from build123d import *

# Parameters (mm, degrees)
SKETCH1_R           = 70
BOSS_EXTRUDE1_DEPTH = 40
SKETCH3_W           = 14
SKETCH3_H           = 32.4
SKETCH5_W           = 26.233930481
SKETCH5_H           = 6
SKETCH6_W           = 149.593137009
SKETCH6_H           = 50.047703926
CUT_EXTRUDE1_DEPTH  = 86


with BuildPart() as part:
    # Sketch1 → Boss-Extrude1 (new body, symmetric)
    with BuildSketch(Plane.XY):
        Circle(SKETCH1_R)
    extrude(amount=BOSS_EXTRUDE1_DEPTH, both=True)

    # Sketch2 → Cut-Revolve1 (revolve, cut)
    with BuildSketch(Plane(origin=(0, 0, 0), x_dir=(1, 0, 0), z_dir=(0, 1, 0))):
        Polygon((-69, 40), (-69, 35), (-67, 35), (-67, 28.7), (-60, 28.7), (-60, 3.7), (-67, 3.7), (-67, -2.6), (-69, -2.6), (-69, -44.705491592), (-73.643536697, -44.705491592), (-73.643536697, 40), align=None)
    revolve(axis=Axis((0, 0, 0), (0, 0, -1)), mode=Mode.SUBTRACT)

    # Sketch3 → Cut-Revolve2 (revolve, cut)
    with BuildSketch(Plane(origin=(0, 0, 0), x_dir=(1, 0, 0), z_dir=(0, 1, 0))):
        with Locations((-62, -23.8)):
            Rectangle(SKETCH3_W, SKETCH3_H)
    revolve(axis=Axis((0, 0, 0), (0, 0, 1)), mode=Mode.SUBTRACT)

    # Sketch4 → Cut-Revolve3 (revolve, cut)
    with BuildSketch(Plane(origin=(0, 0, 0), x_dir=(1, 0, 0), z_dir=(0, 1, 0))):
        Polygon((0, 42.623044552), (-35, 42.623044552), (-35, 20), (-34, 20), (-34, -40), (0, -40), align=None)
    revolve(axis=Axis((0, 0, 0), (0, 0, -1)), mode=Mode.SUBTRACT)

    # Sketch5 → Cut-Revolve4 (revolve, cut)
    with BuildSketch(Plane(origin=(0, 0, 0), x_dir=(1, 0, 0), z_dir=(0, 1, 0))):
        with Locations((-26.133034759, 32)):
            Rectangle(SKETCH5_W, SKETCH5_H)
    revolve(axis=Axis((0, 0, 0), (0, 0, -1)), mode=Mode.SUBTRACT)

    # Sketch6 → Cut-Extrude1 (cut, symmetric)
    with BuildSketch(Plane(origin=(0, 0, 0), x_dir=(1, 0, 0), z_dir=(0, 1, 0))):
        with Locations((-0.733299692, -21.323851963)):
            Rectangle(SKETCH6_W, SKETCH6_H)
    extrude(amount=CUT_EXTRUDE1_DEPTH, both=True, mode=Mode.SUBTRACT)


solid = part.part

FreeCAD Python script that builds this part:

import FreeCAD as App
import Part
import Sketcher
from FreeCAD import Vector
Q = App.Units.Quantity

doc = App.newDocument("Part")
body = doc.addObject("PartDesign::Body", "Body")

# Sketch on XY plane
sketch1 = doc.addObject("Sketcher::SketchObject", "Sketch")
body.addObject(sketch1)
sketch1.AttachmentSupport = (doc.XY_Plane, [""])
sketch1.MapMode = "FlatFace"
sketch1.addGeometry(Part.Circle(Vector(0, 0, 0), Vector(0, 0, 1), 70), False)
sketch1.addConstraint([
    Sketcher.Constraint("Coincident", 0, 3, -1, 1),
    Sketcher.Constraint("Diameter", 0, Q("140 mm")),
])
pad1 = doc.addObject("PartDesign::Pad", "Pad")
body.addObject(pad1)
pad1.Profile = sketch1
pad1.Length = 80
pad1.Midplane = True

# Sketch on XZ plane
sketch2 = doc.addObject("Sketcher::SketchObject", "Sketch001")
body.addObject(sketch2)
sketch2.AttachmentSupport = (doc.XZ_Plane, [""])
sketch2.MapMode = "FlatFace"
sketch2.addGeometry([
    Part.LineSegment(Vector(-69, -35, 0), Vector(-69, -40, 0)),  # 0
    Part.LineSegment(Vector(-69, -40, 0), Vector(-73.643537, -40, 0)),  # 1
    Part.LineSegment(Vector(-73.643537, -40, 0), Vector(-73.643537, 44.705492, 0)),  # 2
    Part.LineSegment(Vector(-73.643537, 44.705492, 0), Vector(-69, 44.705492, 0)),  # 3
    Part.LineSegment(Vector(-69, 44.705492, 0), Vector(-69, 2.6, 0)),  # 4
    Part.LineSegment(Vector(-69, 2.6, 0), Vector(-67, 2.6, 0)),  # 5
    Part.LineSegment(Vector(-67, 2.6, 0), Vector(-67, -3.7, 0)),  # 6
    Part.LineSegment(Vector(-67, -3.7, 0), Vector(-60, -3.7, 0)),  # 7
    Part.LineSegment(Vector(-60, -3.7, 0), Vector(-60, -28.7, 0)),  # 8
    Part.LineSegment(Vector(-60, -28.7, 0), Vector(-67, -28.7, 0)),  # 9
    Part.LineSegment(Vector(-67, -28.7, 0), Vector(-67, -35, 0)),  # 10
    Part.LineSegment(Vector(-67, -35, 0), Vector(-69, -35, 0)),  # 11
], False)
sketch2.addConstraint([
    Sketcher.Constraint("Coincident", 0, 2, 1, 1),
    Sketcher.Constraint("Coincident", 1, 2, 2, 1),
    Sketcher.Constraint("Coincident", 2, 2, 3, 1),
    Sketcher.Constraint("Coincident", 3, 2, 4, 1),
    Sketcher.Constraint("Coincident", 4, 2, 5, 1),
    Sketcher.Constraint("Coincident", 5, 2, 6, 1),
    Sketcher.Constraint("Coincident", 6, 2, 7, 1),
    Sketcher.Constraint("Coincident", 7, 2, 8, 1),
    Sketcher.Constraint("Coincident", 8, 2, 9, 1),
    Sketcher.Constraint("Coincident", 9, 2, 10, 1),
    Sketcher.Constraint("Coincident", 10, 2, 11, 1),
    Sketcher.Constraint("Coincident", 11, 2, 0, 1),
    Sketcher.Constraint("Vertical", 0),
    Sketcher.Constraint("Horizontal", 1),
    Sketcher.Constraint("Vertical", 2),
    Sketcher.Constraint("Horizontal", 3),
    Sketcher.Constraint("Vertical", 4),
    Sketcher.Constraint("Horizontal", 5),
    Sketcher.Constraint("Vertical", 6),
    Sketcher.Constraint("Horizontal", 7),
    Sketcher.Constraint("Vertical", 8),
    Sketcher.Constraint("Horizontal", 9),
    Sketcher.Constraint("Vertical", 10),
    Sketcher.Constraint("Horizontal", 11),
    Sketcher.Constraint("Vertical", 0, 2, 3, 2),
    Sketcher.Constraint("Vertical", 6, 2, 9, 2),
    Sketcher.Constraint("Equal", 6, 10),
    Sketcher.Constraint("DistanceX", 5, 1, 5, 2, Q("2 mm")),
    Sketcher.Constraint("DistanceX", 7, 1, 7, 2, Q("7 mm")),
    Sketcher.Constraint("DistanceY", 0, 2, 0, 1, Q("5 mm")),
    Sketcher.Constraint("DistanceY", 8, 2, 8, 1, Q("25 mm")),
    Sketcher.Constraint("DistanceY", 6, 2, 6, 1, Q("6.3 mm")),
    Sketcher.Constraint("DistanceX", 0, 2, -1, 1, Q("69 mm")),
    Sketcher.Constraint("DistanceY", 0, 2, -1, 1, Q("40 mm")),
    Sketcher.Constraint("DistanceY", 2, 1, 2, 2, Q("84.705492 mm")),
    Sketcher.Constraint("DistanceX", 1, 2, 1, 1, Q("4.643537 mm")),
])
groove = doc.addObject("PartDesign::Groove", "Groove")
body.addObject(groove)
groove.Profile = sketch2
groove.ReferenceAxis = (sketch2, ["V_Axis"])
groove.Angle = 360

# Sketch on XZ plane
sketch3 = doc.addObject("Sketcher::SketchObject", "Sketch002")
body.addObject(sketch3)
sketch3.AttachmentSupport = (doc.XZ_Plane, [""])
sketch3.MapMode = "FlatFace"
sketch3.addGeometry([
    Part.LineSegment(Vector(-69, 7.6, 0), Vector(-69, 40, 0)),
    Part.LineSegment(Vector(-69, 40, 0), Vector(-55, 40, 0)),
    Part.LineSegment(Vector(-55, 40, 0), Vector(-55, 7.6, 0)),
    Part.LineSegment(Vector(-55, 7.6, 0), Vector(-69, 7.6, 0)),
], False)
sketch3.addConstraint([
    Sketcher.Constraint("Coincident", 0, 2, 1, 1),
    Sketcher.Constraint("Coincident", 1, 2, 2, 1),
    Sketcher.Constraint("Coincident", 2, 2, 3, 1),
    Sketcher.Constraint("Coincident", 3, 2, 0, 1),
    Sketcher.Constraint("Vertical", 0),
    Sketcher.Constraint("Horizontal", 1),
    Sketcher.Constraint("Vertical", 2),
    Sketcher.Constraint("Horizontal", 3),
    Sketcher.Constraint("DistanceX", 1, 1, 1, 2, Q("14 mm")),
    Sketcher.Constraint("DistanceY", 0, 1, 0, 2, Q("32.4 mm")),
    Sketcher.Constraint("DistanceX", 0, 2, -1, 1, Q("69 mm")),
    Sketcher.Constraint("DistanceY", -1, 1, 0, 2, Q("40 mm")),
])
groove2 = doc.addObject("PartDesign::Groove", "Groove001")
body.addObject(groove2)
groove2.Profile = sketch3
groove2.ReferenceAxis = (sketch3, ["V_Axis"])
groove2.Angle = 360

# Sketch on XZ plane
sketch4 = doc.addObject("Sketcher::SketchObject", "Sketch003")
body.addObject(sketch4)
sketch4.AttachmentSupport = (doc.XZ_Plane, [""])
sketch4.MapMode = "FlatFace"
sketch4.addGeometry([
    Part.LineSegment(Vector(0, -42.623045, 0), Vector(-35, -42.623045, 0)),  # 0
    Part.LineSegment(Vector(-35, -42.623045, 0), Vector(-35, -20, 0)),  # 1
    Part.LineSegment(Vector(-35, -20, 0), Vector(-34, -20, 0)),  # 2
    Part.LineSegment(Vector(-34, -20, 0), Vector(-34, 40, 0)),  # 3
    Part.LineSegment(Vector(-34, 40, 0), Vector(0, 40, 0)),  # 4
    Part.LineSegment(Vector(0, 40, 0), Vector(0, -42.623045, 0)),  # 5
], False)
sketch4.addConstraint([
    Sketcher.Constraint("Coincident", 0, 2, 1, 1),
    Sketcher.Constraint("Coincident", 1, 2, 2, 1),
    Sketcher.Constraint("Coincident", 2, 2, 3, 1),
    Sketcher.Constraint("Coincident", 3, 2, 4, 1),
    Sketcher.Constraint("Coincident", 4, 2, 5, 1),
    Sketcher.Constraint("Coincident", 5, 2, 0, 1),
    Sketcher.Constraint("Horizontal", 0),
    Sketcher.Constraint("Vertical", 1),
    Sketcher.Constraint("Horizontal", 2),
    Sketcher.Constraint("Vertical", 3),
    Sketcher.Constraint("Horizontal", 4),
    Sketcher.Constraint("Vertical", 5),
    Sketcher.Constraint("PointOnObject", 4, 2, -2),
    Sketcher.Constraint("DistanceX", 0, 2, 0, 1, Q("35 mm")),
    Sketcher.Constraint("DistanceX", 2, 1, 2, 2, Q("1 mm")),
    Sketcher.Constraint("DistanceY", 3, 1, 3, 2, Q("60 mm")),
    Sketcher.Constraint("DistanceY", 1, 2, -1, 1, Q("20 mm")),
    Sketcher.Constraint("DistanceY", 1, 1, 1, 2, Q("22.623045 mm")),
])
groove3 = doc.addObject("PartDesign::Groove", "Groove002")
body.addObject(groove3)
groove3.Profile = sketch4
groove3.ReferenceAxis = (sketch4, ["V_Axis"])
groove3.Angle = 360

# Sketch on XZ plane
sketch5 = doc.addObject("Sketcher::SketchObject", "Sketch004")
body.addObject(sketch5)
sketch5.AttachmentSupport = (doc.XZ_Plane, [""])
sketch5.MapMode = "FlatFace"
sketch5.addGeometry([
    Part.LineSegment(Vector(-39.25, -35, 0), Vector(-39.25, -29, 0)),
    Part.LineSegment(Vector(-39.25, -29, 0), Vector(-13.01607, -29, 0)),
    Part.LineSegment(Vector(-13.01607, -29, 0), Vector(-13.01607, -35, 0)),
    Part.LineSegment(Vector(-13.01607, -35, 0), Vector(-39.25, -35, 0)),
], False)
sketch5.addConstraint([
    Sketcher.Constraint("Coincident", 0, 2, 1, 1),
    Sketcher.Constraint("Coincident", 1, 2, 2, 1),
    Sketcher.Constraint("Coincident", 2, 2, 3, 1),
    Sketcher.Constraint("Coincident", 3, 2, 0, 1),
    Sketcher.Constraint("Vertical", 0),
    Sketcher.Constraint("Horizontal", 1),
    Sketcher.Constraint("Vertical", 2),
    Sketcher.Constraint("Horizontal", 3),
    Sketcher.Constraint("DistanceY", 0, 1, 0, 2, Q("6 mm")),
    Sketcher.Constraint("DistanceY", 0, 2, -1, 1, Q("29 mm")),
    Sketcher.Constraint("DistanceX", 0, 2, -1, 1, Q("39.25 mm")),
    Sketcher.Constraint("DistanceX", 1, 1, 1, 2, Q("26.23393 mm")),
])
groove4 = doc.addObject("PartDesign::Groove", "Groove003")
body.addObject(groove4)
groove4.Profile = sketch5
groove4.ReferenceAxis = (sketch5, ["V_Axis"])
groove4.Angle = 360

# Sketch on XZ plane
sketch6 = doc.addObject("Sketcher::SketchObject", "Sketch005")
body.addObject(sketch6)
sketch6.AttachmentSupport = (doc.XZ_Plane, [""])
sketch6.MapMode = "FlatFace"
sketch6.addGeometry([
    Part.LineSegment(Vector(-75.529868, -3.7, 0), Vector(-75.529868, 46.347704, 0)),
    Part.LineSegment(Vector(-75.529868, 46.347704, 0), Vector(74.063269, 46.347704, 0)),
    Part.LineSegment(Vector(74.063269, 46.347704, 0), Vector(74.063269, -3.7, 0)),
    Part.LineSegment(Vector(74.063269, -3.7, 0), Vector(-75.529868, -3.7, 0)),
], False)
sketch6.addConstraint([
    Sketcher.Constraint("Coincident", 0, 2, 1, 1),
    Sketcher.Constraint("Coincident", 1, 2, 2, 1),
    Sketcher.Constraint("Coincident", 2, 2, 3, 1),
    Sketcher.Constraint("Coincident", 3, 2, 0, 1),
    Sketcher.Constraint("Vertical", 0),
    Sketcher.Constraint("Horizontal", 1),
    Sketcher.Constraint("Vertical", 2),
    Sketcher.Constraint("Horizontal", 3),
    Sketcher.Constraint("DistanceY", 2, 2, -1, 1, Q("3.7 mm")),
    Sketcher.Constraint("DistanceX", 1, 1, 1, 2, Q("149.593137 mm")),
    Sketcher.Constraint("DistanceY", 0, 1, 0, 2, Q("50.047704 mm")),
    Sketcher.Constraint("DistanceX", 0, 2, -1, 1, Q("75.529868 mm")),
])
pocket1 = doc.addObject("PartDesign::Pocket", "Pocket")
body.addObject(pocket1)
pocket1.Profile = sketch6
pocket1.Length = 172
pocket1.Midplane = True

doc.recompute()
